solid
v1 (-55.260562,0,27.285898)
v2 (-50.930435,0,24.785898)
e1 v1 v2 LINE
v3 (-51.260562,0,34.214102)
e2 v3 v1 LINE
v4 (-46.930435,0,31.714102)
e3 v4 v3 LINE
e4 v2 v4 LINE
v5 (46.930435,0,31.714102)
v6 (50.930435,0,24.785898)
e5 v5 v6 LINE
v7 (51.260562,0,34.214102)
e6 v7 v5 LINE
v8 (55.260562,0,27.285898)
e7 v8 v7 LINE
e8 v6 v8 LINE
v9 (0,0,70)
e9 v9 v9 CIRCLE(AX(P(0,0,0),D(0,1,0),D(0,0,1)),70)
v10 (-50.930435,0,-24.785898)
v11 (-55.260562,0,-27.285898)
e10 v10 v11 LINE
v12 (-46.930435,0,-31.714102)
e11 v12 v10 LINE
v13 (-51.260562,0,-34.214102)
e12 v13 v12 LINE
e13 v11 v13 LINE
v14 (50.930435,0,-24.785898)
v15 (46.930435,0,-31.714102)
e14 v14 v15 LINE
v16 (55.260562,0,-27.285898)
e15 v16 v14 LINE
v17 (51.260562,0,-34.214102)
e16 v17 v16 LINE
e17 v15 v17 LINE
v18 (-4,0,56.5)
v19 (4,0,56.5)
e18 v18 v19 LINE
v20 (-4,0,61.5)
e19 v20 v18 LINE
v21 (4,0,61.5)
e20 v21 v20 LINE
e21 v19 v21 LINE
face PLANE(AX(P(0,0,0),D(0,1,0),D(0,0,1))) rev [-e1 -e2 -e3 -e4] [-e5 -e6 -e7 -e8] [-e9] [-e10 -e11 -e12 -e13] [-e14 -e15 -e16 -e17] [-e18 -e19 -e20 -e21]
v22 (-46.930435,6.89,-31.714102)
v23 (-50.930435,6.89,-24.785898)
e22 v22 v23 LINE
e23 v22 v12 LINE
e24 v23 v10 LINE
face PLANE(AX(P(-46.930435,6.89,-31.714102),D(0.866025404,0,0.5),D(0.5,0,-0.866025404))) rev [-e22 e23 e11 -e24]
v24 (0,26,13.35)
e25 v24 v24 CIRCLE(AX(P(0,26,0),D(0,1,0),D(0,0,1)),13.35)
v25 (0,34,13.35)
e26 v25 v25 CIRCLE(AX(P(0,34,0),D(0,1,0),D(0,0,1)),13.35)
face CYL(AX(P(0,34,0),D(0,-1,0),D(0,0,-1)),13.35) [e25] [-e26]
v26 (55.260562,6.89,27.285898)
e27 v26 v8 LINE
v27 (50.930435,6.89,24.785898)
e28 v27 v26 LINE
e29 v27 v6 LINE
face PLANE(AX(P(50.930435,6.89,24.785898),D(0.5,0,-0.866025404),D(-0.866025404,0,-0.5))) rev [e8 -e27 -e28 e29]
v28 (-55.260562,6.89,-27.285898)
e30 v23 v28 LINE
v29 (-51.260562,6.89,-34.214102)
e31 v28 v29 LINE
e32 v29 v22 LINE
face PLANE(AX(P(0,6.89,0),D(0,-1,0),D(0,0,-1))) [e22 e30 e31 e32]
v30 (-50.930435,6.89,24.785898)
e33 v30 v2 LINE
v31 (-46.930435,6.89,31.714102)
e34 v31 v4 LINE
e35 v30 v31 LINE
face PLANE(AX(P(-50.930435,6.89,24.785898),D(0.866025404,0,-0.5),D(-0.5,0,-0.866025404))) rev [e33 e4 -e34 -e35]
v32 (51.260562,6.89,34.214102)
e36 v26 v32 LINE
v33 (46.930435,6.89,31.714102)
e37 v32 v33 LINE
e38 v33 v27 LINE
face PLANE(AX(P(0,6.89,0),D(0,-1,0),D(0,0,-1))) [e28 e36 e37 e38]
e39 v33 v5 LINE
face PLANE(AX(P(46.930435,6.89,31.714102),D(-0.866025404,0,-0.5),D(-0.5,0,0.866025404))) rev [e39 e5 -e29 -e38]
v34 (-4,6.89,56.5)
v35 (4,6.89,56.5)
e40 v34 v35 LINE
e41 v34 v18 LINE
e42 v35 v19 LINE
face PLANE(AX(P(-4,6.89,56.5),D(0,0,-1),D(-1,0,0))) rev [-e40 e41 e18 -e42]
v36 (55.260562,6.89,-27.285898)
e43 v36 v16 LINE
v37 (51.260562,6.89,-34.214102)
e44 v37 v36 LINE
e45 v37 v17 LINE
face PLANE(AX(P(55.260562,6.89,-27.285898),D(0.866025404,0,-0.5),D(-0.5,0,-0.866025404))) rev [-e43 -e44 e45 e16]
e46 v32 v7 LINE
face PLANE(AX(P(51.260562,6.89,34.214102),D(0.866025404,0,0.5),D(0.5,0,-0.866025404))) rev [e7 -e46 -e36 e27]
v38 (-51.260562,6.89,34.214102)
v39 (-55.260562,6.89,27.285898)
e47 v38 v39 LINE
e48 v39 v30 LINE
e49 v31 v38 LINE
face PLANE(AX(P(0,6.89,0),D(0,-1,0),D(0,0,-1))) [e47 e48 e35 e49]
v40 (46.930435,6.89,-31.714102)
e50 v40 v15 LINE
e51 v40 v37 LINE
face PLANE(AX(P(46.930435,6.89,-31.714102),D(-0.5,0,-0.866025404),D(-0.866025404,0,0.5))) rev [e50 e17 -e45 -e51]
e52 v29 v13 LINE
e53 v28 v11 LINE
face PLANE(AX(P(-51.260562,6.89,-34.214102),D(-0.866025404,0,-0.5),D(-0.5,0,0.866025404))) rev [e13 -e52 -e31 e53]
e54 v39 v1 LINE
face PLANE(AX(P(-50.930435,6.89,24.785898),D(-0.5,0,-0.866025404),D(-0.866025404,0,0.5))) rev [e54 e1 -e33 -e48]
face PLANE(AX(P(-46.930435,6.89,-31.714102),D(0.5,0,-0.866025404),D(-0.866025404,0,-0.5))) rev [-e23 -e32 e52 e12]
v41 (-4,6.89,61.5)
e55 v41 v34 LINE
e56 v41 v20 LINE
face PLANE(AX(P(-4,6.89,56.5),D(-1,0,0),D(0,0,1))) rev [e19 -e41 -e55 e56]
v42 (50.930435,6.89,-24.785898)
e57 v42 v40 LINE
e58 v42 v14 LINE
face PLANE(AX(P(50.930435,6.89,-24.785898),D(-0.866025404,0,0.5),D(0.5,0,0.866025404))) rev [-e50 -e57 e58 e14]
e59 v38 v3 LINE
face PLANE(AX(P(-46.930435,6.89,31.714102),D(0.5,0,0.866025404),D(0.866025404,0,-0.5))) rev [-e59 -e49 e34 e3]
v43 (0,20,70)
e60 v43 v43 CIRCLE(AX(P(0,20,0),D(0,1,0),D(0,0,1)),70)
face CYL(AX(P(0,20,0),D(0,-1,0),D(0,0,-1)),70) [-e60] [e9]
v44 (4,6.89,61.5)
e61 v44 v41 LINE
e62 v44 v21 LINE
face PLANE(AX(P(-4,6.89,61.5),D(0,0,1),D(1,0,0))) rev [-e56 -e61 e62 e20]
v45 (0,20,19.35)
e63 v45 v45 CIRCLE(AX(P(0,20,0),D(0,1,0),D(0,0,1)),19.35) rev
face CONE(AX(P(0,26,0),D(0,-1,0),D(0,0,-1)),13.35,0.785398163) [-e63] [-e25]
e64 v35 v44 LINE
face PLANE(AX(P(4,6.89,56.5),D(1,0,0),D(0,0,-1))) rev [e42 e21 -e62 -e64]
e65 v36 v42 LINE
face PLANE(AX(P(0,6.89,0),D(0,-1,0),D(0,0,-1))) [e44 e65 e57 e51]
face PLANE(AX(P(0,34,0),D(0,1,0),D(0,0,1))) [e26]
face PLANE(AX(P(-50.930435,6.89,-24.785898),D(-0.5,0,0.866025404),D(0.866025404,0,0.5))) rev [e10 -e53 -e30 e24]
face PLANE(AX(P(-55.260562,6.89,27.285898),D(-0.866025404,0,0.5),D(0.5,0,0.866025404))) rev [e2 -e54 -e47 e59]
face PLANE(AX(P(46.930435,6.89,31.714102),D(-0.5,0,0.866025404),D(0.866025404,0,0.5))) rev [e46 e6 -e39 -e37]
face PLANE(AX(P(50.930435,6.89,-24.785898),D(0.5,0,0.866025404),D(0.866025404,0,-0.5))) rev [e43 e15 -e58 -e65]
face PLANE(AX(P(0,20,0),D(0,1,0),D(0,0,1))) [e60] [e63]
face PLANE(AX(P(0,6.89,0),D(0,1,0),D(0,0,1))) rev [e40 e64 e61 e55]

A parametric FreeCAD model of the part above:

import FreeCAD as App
import Part
import Sketcher
Q = App.Units.Quantity


def edges_at(feature, points):
    """Names of the edges that pass closest to the given points."""
    edges = feature.Shape.Edges
    near = lambda p: min(range(len(edges)), key=lambda i: edges[i].distToShape(Part.Vertex(*p))[0])
    return sorted({f"Edge{near(p) + 1}" for p in points})

doc = App.newDocument("Part")
params = doc.addObject("Spreadsheet::Sheet", "Params")
for row, (alias, value) in enumerate([
    ("sketch1_diameter", "140 mm"),
    ("pad1_length", "20 mm"),
    ("sketch2_width", "8 mm"),
    ("sketch2_height", "5 mm"),
    ("sketch2_length", "5 mm"),
    ("sketch2_length2", "8 mm"),
    ("pocket1_length", "6.89 mm"),
    ("sketch3_diameter", "26.7 mm"),
    ("pad2_length", "14 mm"),
    ("chamfer_size", "6 mm"),
], start=1):
    params.set(f"A{row}", alias)
    params.set(f"B{row}", "=" + value)
    params.setAlias(f"B{row}", alias)

body = doc.addObject("PartDesign::Body", "Body")

sketch1 = body.newObject("Sketcher::SketchObject", "Sketch")
sketch1.AttachmentSupport = (doc.getObject("XZ_Plane"), [""])
sketch1.MapMode = "FlatFace"
sketch1.addGeometry(Part.Circle(App.Vector(0, 0, 0), App.Vector(0, 0, 1), 70), False)
sketch1.addConstraint([
    Sketcher.Constraint("Coincident", 0, 3, -1, 1),
    Sketcher.Constraint("Diameter", 0, 140.0),
])
sketch1.setExpression("Constraints[1]", "Params.sketch1_diameter")
pad1 = body.newObject("PartDesign::Pad", "Pad")
pad1.Profile = sketch1
pad1.setExpression("Length", "Params.pad1_length")
pad1.Reversed = True

sketch2 = body.newObject("Sketcher::SketchObject", "Sketch001")
sketch2.AttachmentSupport = (doc.getObject("XZ_Plane"), [""])
sketch2.MapMode = "FlatFace"
sketch2.addGeometry([
    Part.LineSegment(App.Vector(-4, 62, 0), App.Vector(-4, 56, 0)),
    Part.LineSegment(App.Vector(-4, 56, 0), App.Vector(4, 56, 0)),
    Part.LineSegment(App.Vector(4, 56, 0), App.Vector(4, 62, 0)),
    Part.LineSegment(App.Vector(4, 62, 0), App.Vector(-4, 62, 0)),
    Part.LineSegment(App.Vector(51, 25, 0), App.Vector(55, 27, 0)),
    Part.LineSegment(App.Vector(55, 27, 0), App.Vector(51, 34, 0)),
    Part.LineSegment(App.Vector(51, 34, 0), App.Vector(47, 32, 0)),
    Part.LineSegment(App.Vector(47, 32, 0), App.Vector(51, 25, 0)),
    Part.LineSegment(App.Vector(47, -32, 0), App.Vector(51, -34, 0)),
    Part.LineSegment(App.Vector(51, -34, 0), App.Vector(55, -27, 0)),
    Part.LineSegment(App.Vector(55, -27, 0), App.Vector(51, -25, 0)),
    Part.LineSegment(App.Vector(51, -25, 0), App.Vector(47, -32, 0)),
    Part.LineSegment(App.Vector(-51, -25, 0), App.Vector(-55, -27, 0)),
    Part.LineSegment(App.Vector(-55, -27, 0), App.Vector(-51, -34, 0)),
    Part.LineSegment(App.Vector(-51, -34, 0), App.Vector(-47, -32, 0)),
    Part.LineSegment(App.Vector(-47, -32, 0), App.Vector(-51, -25, 0)),
    Part.LineSegment(App.Vector(-47, 32, 0), App.Vector(-51, 34, 0)),
    Part.LineSegment(App.Vector(-51, 34, 0), App.Vector(-55, 27, 0)),
    Part.LineSegment(App.Vector(-55, 27, 0), App.Vector(-51, 25, 0)),
    Part.LineSegment(App.Vector(-51, 25, 0), App.Vector(-47, 32, 0)),
], False)
sketch2.addConstraint([
    Sketcher.Constraint("Coincident", 0, 2, 1, 1),
    Sketcher.Constraint("Coincident", 1, 2, 2, 1),
    Sketcher.Constraint("Coincident", 2, 2, 3, 1),
    Sketcher.Constraint("Coincident", 3, 2, 0, 1),
    Sketcher.Constraint("Coincident", 4, 2, 5, 1),
    Sketcher.Constraint("Coincident", 5, 2, 6, 1),
    Sketcher.Constraint("Coincident", 6, 2, 7, 1),
    Sketcher.Constraint("Coincident", 7, 2, 4, 1),
    Sketcher.Constraint("Coincident", 8, 2, 9, 1),
    Sketcher.Constraint("Coincident", 9, 2, 10, 1),
    Sketcher.Constraint("Coincident", 10, 2, 11, 1),
    Sketcher.Constraint("Coincident", 11, 2, 8, 1),
    Sketcher.Constraint("Coincident", 12, 2, 13, 1),
    Sketcher.Constraint("Coincident", 13, 2, 14, 1),
    Sketcher.Constraint("Coincident", 14, 2, 15, 1),
    Sketcher.Constraint("Coincident", 15, 2, 12, 1),
    Sketcher.Constraint("Coincident", 16, 2, 17, 1),
    Sketcher.Constraint("Coincident", 17, 2, 18, 1),
    Sketcher.Constraint("Coincident", 18, 2, 19, 1),
    Sketcher.Constraint("Coincident", 19, 2, 16, 1),
    Sketcher.Constraint("Vertical", 0),
    Sketcher.Constraint("Horizontal", 1),
    Sketcher.Constraint("Vertical", 2),
    Sketcher.Constraint("Horizontal", 3),
    Sketcher.Constraint("Symmetric", 4, 2, 12, 2, -1, 1),
    Sketcher.Constraint("Symmetric", 5, 2, 13, 2, -1, 1),
    Sketcher.Constraint("Symmetric", 6, 2, 14, 2, -1, 1),
    Sketcher.Constraint("Symmetric", 7, 2, 15, 2, -1, 1),
    Sketcher.Constraint("Symmetric", 8, 2, 16, 2, -1, 1),
    Sketcher.Constraint("Symmetric", 9, 2, 17, 2, -1, 1),
    Sketcher.Constraint("Symmetric", 10, 2, 18, 2, -1, 1),
    Sketcher.Constraint("Symmetric", 11, 2, 19, 2, -1, 1),
    Sketcher.Constraint("Symmetric", 9, 2, 12, 2, -2),
    Sketcher.Constraint("Symmetric", 8, 2, 13, 2, -2),
    Sketcher.Constraint("Symmetric", 11, 2, 14, 2, -2),
    Sketcher.Constraint("Symmetric", 10, 2, 15, 2, -2),
    Sketcher.Constraint("Perpendicular", 4, 5),
    Sketcher.Constraint("Perpendicular", 5, 6),
    Sketcher.Constraint("Perpendicular", 6, 7),
    Sketcher.Constraint("DistanceX", 1, 1, 1, 2, 8.0),
    Sketcher.Constraint("DistanceY", 0, 2, 0, 1, 5.0),
    Sketcher.Constraint("Angle", 4, Q("30 deg")),
    Sketcher.Constraint("Distance", 4, 5.0),
    Sketcher.Constraint("Distance", 5, 8.0),
    Sketcher.Constraint("DistanceX", 0, 2, -1, 1, 4.0),
    Sketcher.Constraint("DistanceY", 8, 2, 7, 2, 59.0),
    Sketcher.Constraint("DistanceY", -1, 1, 0, 2, 56.5),
    Sketcher.Constraint("DistanceX", 14, 2, 11, 2, 93.860871),
])
sketch2.setExpression("Constraints[39]", "Params.sketch2_width")
sketch2.setExpression("Constraints[40]", "Params.sketch2_height")
sketch2.setExpression("Constraints[42]", "Params.sketch2_length")
sketch2.setExpression("Constraints[43]", "Params.sketch2_length2")
pocket1 = body.newObject("PartDesign::Pocket", "Pocket")
pocket1.Profile = sketch2
pocket1.setExpression("Length", "Params.pocket1_length")

sketch3 = body.newObject("Sketcher::SketchObject", "Sketch002")
sketch3.AttachmentSupport = (doc.getObject("XZ_Plane"), [""])
sketch3.MapMode = "FlatFace"
sketch3.AttachmentOffset = App.Placement(App.Vector(0, 0, -20), App.Rotation())
sketch3.addGeometry(Part.Circle(App.Vector(0, 0, 0), App.Vector(0, 0, 1), 13), False)
sketch3.addConstraint([
    Sketcher.Constraint("Coincident", 0, 3, -1, 1),
    Sketcher.Constraint("Diameter", 0, 26.7),
])
sketch3.setExpression("Constraints[1]", "Params.sketch3_diameter")
pad2 = body.newObject("PartDesign::Pad", "Pad001")
pad2.Profile = sketch3
pad2.setExpression("Length", "Params.pad2_length")
pad2.Reversed = True
doc.recompute()

chamfer = body.newObject("PartDesign::Chamfer", "Chamfer")
chamfer.Base = (pad2, edges_at(pad2, [(-13.35, 20, 0)]))
chamfer.setExpression("Size", "Params.chamfer_size")

doc.recompute()
